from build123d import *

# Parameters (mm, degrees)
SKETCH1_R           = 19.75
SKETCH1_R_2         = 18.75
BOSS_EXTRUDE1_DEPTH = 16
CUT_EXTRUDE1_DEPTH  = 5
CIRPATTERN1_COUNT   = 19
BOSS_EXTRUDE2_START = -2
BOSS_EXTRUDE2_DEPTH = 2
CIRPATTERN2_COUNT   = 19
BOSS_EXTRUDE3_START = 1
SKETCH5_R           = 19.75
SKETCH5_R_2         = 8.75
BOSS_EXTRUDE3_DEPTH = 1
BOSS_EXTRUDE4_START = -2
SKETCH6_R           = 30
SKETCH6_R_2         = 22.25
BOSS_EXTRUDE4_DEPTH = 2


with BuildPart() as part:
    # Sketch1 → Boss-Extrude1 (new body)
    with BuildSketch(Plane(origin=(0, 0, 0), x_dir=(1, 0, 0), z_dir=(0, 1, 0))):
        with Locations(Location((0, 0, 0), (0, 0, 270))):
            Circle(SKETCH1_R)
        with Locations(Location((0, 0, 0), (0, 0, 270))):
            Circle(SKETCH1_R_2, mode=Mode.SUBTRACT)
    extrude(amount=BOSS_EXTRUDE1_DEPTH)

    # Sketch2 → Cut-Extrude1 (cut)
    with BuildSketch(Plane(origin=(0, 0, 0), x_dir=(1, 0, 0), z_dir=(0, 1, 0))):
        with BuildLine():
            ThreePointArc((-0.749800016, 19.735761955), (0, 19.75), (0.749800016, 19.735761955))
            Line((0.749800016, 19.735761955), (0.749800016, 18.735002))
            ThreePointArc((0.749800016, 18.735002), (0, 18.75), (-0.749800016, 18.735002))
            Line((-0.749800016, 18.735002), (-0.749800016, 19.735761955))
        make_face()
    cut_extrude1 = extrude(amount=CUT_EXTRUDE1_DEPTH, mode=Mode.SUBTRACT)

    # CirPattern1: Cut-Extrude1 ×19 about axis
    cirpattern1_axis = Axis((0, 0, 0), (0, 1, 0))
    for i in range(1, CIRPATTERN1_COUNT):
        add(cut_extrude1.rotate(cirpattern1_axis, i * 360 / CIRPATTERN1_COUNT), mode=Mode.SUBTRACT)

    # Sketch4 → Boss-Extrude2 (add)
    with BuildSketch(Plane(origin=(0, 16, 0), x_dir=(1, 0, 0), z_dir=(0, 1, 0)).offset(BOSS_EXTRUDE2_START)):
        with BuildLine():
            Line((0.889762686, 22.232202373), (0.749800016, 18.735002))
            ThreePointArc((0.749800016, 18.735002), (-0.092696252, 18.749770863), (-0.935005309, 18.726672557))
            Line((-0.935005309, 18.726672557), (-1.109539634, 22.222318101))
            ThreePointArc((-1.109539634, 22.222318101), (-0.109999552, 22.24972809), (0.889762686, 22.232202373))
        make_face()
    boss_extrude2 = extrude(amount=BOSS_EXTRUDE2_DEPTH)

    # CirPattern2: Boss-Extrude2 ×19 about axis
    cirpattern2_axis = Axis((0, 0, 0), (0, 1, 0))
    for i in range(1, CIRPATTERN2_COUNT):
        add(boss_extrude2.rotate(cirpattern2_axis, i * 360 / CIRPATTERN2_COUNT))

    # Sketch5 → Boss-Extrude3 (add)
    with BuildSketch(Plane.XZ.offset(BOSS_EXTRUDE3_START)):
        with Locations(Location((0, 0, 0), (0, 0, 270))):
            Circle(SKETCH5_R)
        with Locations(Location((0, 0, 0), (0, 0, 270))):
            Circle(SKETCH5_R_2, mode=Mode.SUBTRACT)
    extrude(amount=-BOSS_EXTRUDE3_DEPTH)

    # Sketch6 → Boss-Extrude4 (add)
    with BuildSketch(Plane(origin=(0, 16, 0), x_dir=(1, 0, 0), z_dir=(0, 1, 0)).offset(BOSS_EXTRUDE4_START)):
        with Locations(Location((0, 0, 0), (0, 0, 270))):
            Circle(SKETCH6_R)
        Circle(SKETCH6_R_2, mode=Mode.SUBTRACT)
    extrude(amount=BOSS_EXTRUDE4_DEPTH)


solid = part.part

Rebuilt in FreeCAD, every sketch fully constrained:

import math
import FreeCAD as App
import Part
import Sketcher
Q = App.Units.Quantity

doc = App.newDocument("Part")
body = doc.addObject("PartDesign::Body", "Body")

sketch1 = doc.addObject("Sketcher::SketchObject", "Sketch")
body.addObject(sketch1)
sketch1.AttachmentSupport = (doc.XZ_Plane, [""])
sketch1.MapMode = "FlatFace"
sketch1.addGeometry([
    Part.Circle(App.Vector(0, 0, 0), App.Vector(0, 0, 1), 20),
    Part.Circle(App.Vector(0, 0, 0), App.Vector(0, 0, 1), 19),
], False)
sketch1.addConstraint([
    Sketcher.Constraint("Coincident", 0, 3, -1, 1),
    Sketcher.Constraint("Coincident", 1, 3, -1, 1),
    Sketcher.Constraint("Diameter", 0, Q("39.5 mm")),
    Sketcher.Constraint("Diameter", 1, Q("37.5 mm")),
])
pad1 = doc.addObject("PartDesign::Pad", "Pad")
body.addObject(pad1)
pad1.Profile = sketch1
pad1.Length = 16
pad1.Reversed = True

sketch2 = doc.addObject("Sketcher::SketchObject", "Sketch001")
body.addObject(sketch2)
sketch2.AttachmentSupport = (doc.XZ_Plane, [""])
sketch2.MapMode = "FlatFace"
sketch2.addGeometry([
    Part.ArcOfCircle(Part.Circle(App.Vector(0, 0, 0), App.Vector(0, 0, 1), 19.8), math.radians(-92.18), math.radians(-87.82)),
    Part.LineSegment(App.Vector(-0.7, -19.7, 0), App.Vector(-0.7, -18.7, 0)),
    Part.ArcOfCircle(Part.Circle(App.Vector(0, 0, 0), App.Vector(0, 0, 1), 18.8), math.radians(-92.29), math.radians(-87.71)),
    Part.LineSegment(App.Vector(0.7, -18.7, 0), App.Vector(0.7, -19.7, 0)),
], False)
sketch2.addConstraint([
    Sketcher.Constraint("Coincident", 0, 1, 1, 1),
    Sketcher.Constraint("Coincident", 1, 2, 2, 1),
    Sketcher.Constraint("Coincident", 2, 2, 3, 1),
    Sketcher.Constraint("Coincident", 3, 2, 0, 2),
    Sketcher.Constraint("Vertical", 1),
    Sketcher.Constraint("Vertical", 3),
    Sketcher.Constraint("Coincident", 0, 3, -1, 1),
    Sketcher.Constraint("Coincident", 2, 3, -1, 1),
    Sketcher.Constraint("Horizontal", 1, 2, 2, 2),
    Sketcher.Constraint("Radius", 0, Q("19.75 mm")),
    Sketcher.Constraint("Radius", 2, Q("18.75 mm")),
    Sketcher.Constraint("DistanceY", 2, 2, -1, 1, Q("18.735002 mm")),
])
pocket1 = doc.addObject("PartDesign::Pocket", "Pocket")
body.addObject(pocket1)
pocket1.Profile = sketch2
pocket1.Length = 5
doc.recompute()

polarpattern = doc.addObject("PartDesign::PolarPattern", "PolarPattern")
body.addObject(polarpattern)
polarpattern.Originals = [pocket1]
polarpattern.Axis = (doc.Y_Axis, [""])
polarpattern.Angle = 360
polarpattern.Occurrences = 19
body.Tip = polarpattern

sketch3 = doc.addObject("Sketcher::SketchObject", "Sketch002")
body.addObject(sketch3)
sketch3.AttachmentSupport = (doc.XZ_Plane, [""])
sketch3.MapMode = "FlatFace"
sketch3.AttachmentOffset = App.Placement(App.Vector(0, 0, -14), App.Rotation())
sketch3.addGeometry([
    Part.LineSegment(App.Vector(0.7, -18.7, 0), App.Vector(0.9, -22.2, 0)),
    Part.ArcOfCircle(Part.Circle(App.Vector(0, 0, 0), App.Vector(0, 0, 1), 22.3), math.radians(-92.86), math.radians(-87.71)),
    Part.LineSegment(App.Vector(-1.1, -22.2, 0), App.Vector(-0.9, -18.7, 0)),
    Part.ArcOfCircle(Part.Circle(App.Vector(0, 0, 0), App.Vector(0, 0, 1), 18.7), math.radians(-92.86), math.radians(-87.71)),
], False)
sketch3.addConstraint([
    Sketcher.Constraint("Coincident", 0, 2, 1, 2),
    Sketcher.Constraint("Coincident", 1, 1, 2, 1),
    Sketcher.Constraint("Coincident", 2, 2, 3, 1),
    Sketcher.Constraint("Coincident", 3, 2, 0, 1),
    Sketcher.Constraint("Coincident", 1, 3, -1, 1),
    Sketcher.Constraint("Coincident", 3, 3, -1, 1),
    Sketcher.Constraint("Radius", 1, Q("22.25 mm")),
    Sketcher.Constraint("Radius", 3, Q("18.75 mm")),
    Sketcher.Constraint("DistanceY", 3, 2, 3, 3, Q("18.735002 mm")),
    Sketcher.Constraint("DistanceY", 0, 2, 3, 3, Q("22.232202 mm")),
    Sketcher.Constraint("DistanceX", 1, 1, -1, 1, Q("1.10954 mm")),
    Sketcher.Constraint("DistanceY", 0, 2, 2, 2, Q("3.50553 mm")),
])
pad2 = doc.addObject("PartDesign::Pad", "Pad001")
body.addObject(pad2)
pad2.Profile = sketch3
pad2.Length = 2
pad2.Reversed = True
doc.recompute()

polarpattern2 = doc.addObject("PartDesign::PolarPattern", "PolarPattern001")
body.addObject(polarpattern2)
polarpattern2.Originals = [pad2]
polarpattern2.Axis = (doc.Y_Axis, [""])
polarpattern2.Angle = 360
polarpattern2.Occurrences = 19
body.Tip = polarpattern2

sketch4 = doc.addObject("Sketcher::SketchObject", "Sketch003")
body.addObject(sketch4)
sketch4.AttachmentSupport = (doc.XZ_Plane, [""])
sketch4.MapMode = "FlatFace"
sketch4.AttachmentOffset = App.Placement(App.Vector(0, 0, 1), App.Rotation())
sketch4.addGeometry([
    Part.Circle(App.Vector(0, 0, 0), App.Vector(0, 0, 1), 20),
    Part.Circle(App.Vector(0, 0, 0), App.Vector(0, 0, 1), 9),
], False)
sketch4.addConstraint([
    Sketcher.Constraint("Coincident", 0, 3, -1, 1),
    Sketcher.Constraint("Coincident", 1, 3, -1, 1),
    Sketcher.Constraint("Diameter", 0, Q("39.5 mm")),
    Sketcher.Constraint("Diameter", 1, Q("17.5 mm")),
])
pad3 = doc.addObject("PartDesign::Pad", "Pad002")
body.addObject(pad3)
pad3.Profile = sketch4
pad3.Length = 1
pad3.Reversed = True

sketch5 = doc.addObject("Sketcher::SketchObject", "Sketch004")
body.addObject(sketch5)
sketch5.AttachmentSupport = (doc.XZ_Plane, [""])
sketch5.MapMode = "FlatFace"
sketch5.AttachmentOffset = App.Placement(App.Vector(0, 0, -14), App.Rotation())
sketch5.addGeometry([
    Part.Circle(App.Vector(0, 0, 0), App.Vector(0, 0, 1), 30),
    Part.Circle(App.Vector(0, 0, 0), App.Vector(0, 0, 1), 22),
], False)
sketch5.addConstraint([
    Sketcher.Constraint("Coincident", 0, 3, -1, 1),
    Sketcher.Constraint("Coincident", 1, 3, -1, 1),
    Sketcher.Constraint("Diameter", 0, Q("60 mm")),
    Sketcher.Constraint("Diameter", 1, Q("44.5 mm")),
])
pad4 = doc.addObject("PartDesign::Pad", "Pad003")
body.addObject(pad4)
pad4.Profile = sketch5
pad4.Length = 2
pad4.Reversed = True

doc.recompute()
